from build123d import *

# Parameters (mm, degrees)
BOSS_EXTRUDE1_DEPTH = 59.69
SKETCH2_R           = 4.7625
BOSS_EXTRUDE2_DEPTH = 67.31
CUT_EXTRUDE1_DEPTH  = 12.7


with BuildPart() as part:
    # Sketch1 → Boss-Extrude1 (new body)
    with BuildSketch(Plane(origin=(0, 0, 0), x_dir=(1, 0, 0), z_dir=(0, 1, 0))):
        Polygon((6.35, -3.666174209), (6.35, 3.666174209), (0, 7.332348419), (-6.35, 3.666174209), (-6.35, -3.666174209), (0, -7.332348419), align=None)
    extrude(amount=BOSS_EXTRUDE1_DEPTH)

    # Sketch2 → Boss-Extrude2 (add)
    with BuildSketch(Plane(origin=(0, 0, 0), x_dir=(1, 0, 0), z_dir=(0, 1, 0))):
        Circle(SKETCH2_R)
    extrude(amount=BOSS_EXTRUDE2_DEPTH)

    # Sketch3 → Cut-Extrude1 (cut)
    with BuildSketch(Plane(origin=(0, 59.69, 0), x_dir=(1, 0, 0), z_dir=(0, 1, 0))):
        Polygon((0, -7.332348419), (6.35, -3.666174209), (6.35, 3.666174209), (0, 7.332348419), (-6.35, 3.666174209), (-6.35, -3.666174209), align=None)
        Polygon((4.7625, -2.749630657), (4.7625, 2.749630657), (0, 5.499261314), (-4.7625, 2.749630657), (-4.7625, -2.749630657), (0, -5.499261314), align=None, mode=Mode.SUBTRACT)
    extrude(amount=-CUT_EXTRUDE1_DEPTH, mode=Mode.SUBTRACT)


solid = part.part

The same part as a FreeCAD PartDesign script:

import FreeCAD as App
import Part
import Sketcher
from FreeCAD import Vector
Q = App.Units.Quantity


def add_polygon(sketch, points):
    """Adds a closed chain of lines whose ends are joined by coincident constraints."""
    first, n = sketch.GeometryCount, len(points)
    for a, b in zip(points, points[1:] + points[:1]):
        sketch.addGeometry(Part.LineSegment(App.Vector(*a, 0), App.Vector(*b, 0)), False)
    for i in range(n):
        sketch.addConstraint(Sketcher.Constraint("Coincident", first + i, 2, first + (i + 1) % n, 1))

doc = App.newDocument("Part")
body = doc.addObject("PartDesign::Body", "Body")

sketch1 = doc.addObject("Sketcher::SketchObject", "Sketch")
body.addObject(sketch1)
sketch1.AttachmentSupport = (doc.XZ_Plane, [""])
sketch1.MapMode = "FlatFace"
add_polygon(sketch1, [(6.35, 3.666174), (6.35, -3.666174), (0, -7.332348), (-6.35, -3.666174), (-6.35, 3.666174), (0, 7.332348)])
sketch1.addConstraint([
    Sketcher.Constraint("Vertical", 0),
    Sketcher.Constraint("Vertical", 3),
    Sketcher.Constraint("Symmetric", 0, 2, 3, 2, -1, 1),
    Sketcher.Constraint("Symmetric", 1, 2, 4, 2, -1, 1),
    Sketcher.Constraint("PointOnObject", 1, 2, -2),
    Sketcher.Constraint("Parallel", 2, 5),
    Sketcher.Constraint("Horizontal", 0, 2, 2, 2),
    Sketcher.Constraint("Angle", 1, Q("-150 deg")),
    Sketcher.Constraint("DistanceX", 2, 2, 0, 2, Q("0.5 in")),
    Sketcher.Constraint("DistanceY", 0, 2, 0, 1, 7.332348),
])
pad1 = doc.addObject("PartDesign::Pad", "Pad")
body.addObject(pad1)
pad1.Profile = sketch1
pad1.Length = Q("2.35 in")
pad1.Reversed = True

sketch2 = doc.addObject("Sketcher::SketchObject", "Sketch001")
body.addObject(sketch2)
sketch2.AttachmentSupport = (doc.XZ_Plane, [""])
sketch2.MapMode = "FlatFace"
sketch2.addGeometry(Part.Circle(Vector(0, 0, 0), Vector(0, 0, 1), 4.7625), False)
sketch2.addConstraint([
    Sketcher.Constraint("Coincident", 0, 3, -1, 1),
    Sketcher.Constraint("Diameter", 0, Q("0.375 in")),
])
pad2 = doc.addObject("PartDesign::Pad", "Pad001")
body.addObject(pad2)
pad2.Profile = sketch2
pad2.Length = Q("2.65 in")
pad2.Reversed = True

sketch3 = doc.addObject("Sketcher::SketchObject", "Sketch002")
body.addObject(sketch3)
sketch3.AttachmentSupport = (doc.XZ_Plane, [""])
sketch3.MapMode = "FlatFace"
sketch3.AttachmentOffset = App.Placement(Vector(0, 0, -2.35 * 25.4), App.Rotation())
add_polygon(sketch3, [(0, 7.332348), (6.35, 3.666174), (6.35, -3.666174), (0, -7.332348), (-6.35, -3.666174), (-6.35, 3.666174)])
add_polygon(sketch3, [(4.7625, -2.749631), (4.7625, 2.749631), (0, 5.499261), (-4.7625, 2.749631), (-4.7625, -2.749631), (0, -5.499261)])
sketch3.addConstraint([
    Sketcher.Constraint("Vertical", 1),
    Sketcher.Constraint("Vertical", 4),
    Sketcher.Constraint("Vertical", 6),
    Sketcher.Constraint("Vertical", 9),
    Sketcher.Constraint("Symmetric", 0, 2, 3, 2, -1, 1),
    Sketcher.Constraint("Symmetric", 2, 2, 5, 2, -1, 1),
    Sketcher.Constraint("Symmetric", 6, 2, 9, 2, -1, 1),
    Sketcher.Constraint("Symmetric", 7, 2, 10, 2, -1, 1),
    Sketcher.Constraint("PointOnObject", 2, 2, -2),
    Sketcher.Constraint("PointOnObject", 7, 2, -2),
    Sketcher.Constraint("Parallel", 2, 5),
    Sketcher.Constraint("Parallel", 3, 7),
    Sketcher.Constraint("Parallel", 5, 8),
    Sketcher.Constraint("Parallel", 8, 11),
    Sketcher.Constraint("Horizontal", 1, 2, 3, 2),
    Sketcher.Constraint("Angle", 0, Q("-30 deg")),
    Sketcher.Constraint("DistanceX", 3, 2, 1, 2, Q("0.5 in")),
    Sketcher.Constraint("DistanceX", -1, 1, 6, 2, Q("0.1875 in")),
    Sketcher.Constraint("DistanceY", 1, 2, 1, 1, 7.332348),
    Sketcher.Constraint("DistanceY", 6, 1, 6, 2, 5.499261),
])
pocket1 = doc.addObject("PartDesign::Pocket", "Pocket")
body.addObject(pocket1)
pocket1.Profile = sketch3
pocket1.Length = Q("0.5 in")
pocket1.Reversed = True

doc.recompute()
